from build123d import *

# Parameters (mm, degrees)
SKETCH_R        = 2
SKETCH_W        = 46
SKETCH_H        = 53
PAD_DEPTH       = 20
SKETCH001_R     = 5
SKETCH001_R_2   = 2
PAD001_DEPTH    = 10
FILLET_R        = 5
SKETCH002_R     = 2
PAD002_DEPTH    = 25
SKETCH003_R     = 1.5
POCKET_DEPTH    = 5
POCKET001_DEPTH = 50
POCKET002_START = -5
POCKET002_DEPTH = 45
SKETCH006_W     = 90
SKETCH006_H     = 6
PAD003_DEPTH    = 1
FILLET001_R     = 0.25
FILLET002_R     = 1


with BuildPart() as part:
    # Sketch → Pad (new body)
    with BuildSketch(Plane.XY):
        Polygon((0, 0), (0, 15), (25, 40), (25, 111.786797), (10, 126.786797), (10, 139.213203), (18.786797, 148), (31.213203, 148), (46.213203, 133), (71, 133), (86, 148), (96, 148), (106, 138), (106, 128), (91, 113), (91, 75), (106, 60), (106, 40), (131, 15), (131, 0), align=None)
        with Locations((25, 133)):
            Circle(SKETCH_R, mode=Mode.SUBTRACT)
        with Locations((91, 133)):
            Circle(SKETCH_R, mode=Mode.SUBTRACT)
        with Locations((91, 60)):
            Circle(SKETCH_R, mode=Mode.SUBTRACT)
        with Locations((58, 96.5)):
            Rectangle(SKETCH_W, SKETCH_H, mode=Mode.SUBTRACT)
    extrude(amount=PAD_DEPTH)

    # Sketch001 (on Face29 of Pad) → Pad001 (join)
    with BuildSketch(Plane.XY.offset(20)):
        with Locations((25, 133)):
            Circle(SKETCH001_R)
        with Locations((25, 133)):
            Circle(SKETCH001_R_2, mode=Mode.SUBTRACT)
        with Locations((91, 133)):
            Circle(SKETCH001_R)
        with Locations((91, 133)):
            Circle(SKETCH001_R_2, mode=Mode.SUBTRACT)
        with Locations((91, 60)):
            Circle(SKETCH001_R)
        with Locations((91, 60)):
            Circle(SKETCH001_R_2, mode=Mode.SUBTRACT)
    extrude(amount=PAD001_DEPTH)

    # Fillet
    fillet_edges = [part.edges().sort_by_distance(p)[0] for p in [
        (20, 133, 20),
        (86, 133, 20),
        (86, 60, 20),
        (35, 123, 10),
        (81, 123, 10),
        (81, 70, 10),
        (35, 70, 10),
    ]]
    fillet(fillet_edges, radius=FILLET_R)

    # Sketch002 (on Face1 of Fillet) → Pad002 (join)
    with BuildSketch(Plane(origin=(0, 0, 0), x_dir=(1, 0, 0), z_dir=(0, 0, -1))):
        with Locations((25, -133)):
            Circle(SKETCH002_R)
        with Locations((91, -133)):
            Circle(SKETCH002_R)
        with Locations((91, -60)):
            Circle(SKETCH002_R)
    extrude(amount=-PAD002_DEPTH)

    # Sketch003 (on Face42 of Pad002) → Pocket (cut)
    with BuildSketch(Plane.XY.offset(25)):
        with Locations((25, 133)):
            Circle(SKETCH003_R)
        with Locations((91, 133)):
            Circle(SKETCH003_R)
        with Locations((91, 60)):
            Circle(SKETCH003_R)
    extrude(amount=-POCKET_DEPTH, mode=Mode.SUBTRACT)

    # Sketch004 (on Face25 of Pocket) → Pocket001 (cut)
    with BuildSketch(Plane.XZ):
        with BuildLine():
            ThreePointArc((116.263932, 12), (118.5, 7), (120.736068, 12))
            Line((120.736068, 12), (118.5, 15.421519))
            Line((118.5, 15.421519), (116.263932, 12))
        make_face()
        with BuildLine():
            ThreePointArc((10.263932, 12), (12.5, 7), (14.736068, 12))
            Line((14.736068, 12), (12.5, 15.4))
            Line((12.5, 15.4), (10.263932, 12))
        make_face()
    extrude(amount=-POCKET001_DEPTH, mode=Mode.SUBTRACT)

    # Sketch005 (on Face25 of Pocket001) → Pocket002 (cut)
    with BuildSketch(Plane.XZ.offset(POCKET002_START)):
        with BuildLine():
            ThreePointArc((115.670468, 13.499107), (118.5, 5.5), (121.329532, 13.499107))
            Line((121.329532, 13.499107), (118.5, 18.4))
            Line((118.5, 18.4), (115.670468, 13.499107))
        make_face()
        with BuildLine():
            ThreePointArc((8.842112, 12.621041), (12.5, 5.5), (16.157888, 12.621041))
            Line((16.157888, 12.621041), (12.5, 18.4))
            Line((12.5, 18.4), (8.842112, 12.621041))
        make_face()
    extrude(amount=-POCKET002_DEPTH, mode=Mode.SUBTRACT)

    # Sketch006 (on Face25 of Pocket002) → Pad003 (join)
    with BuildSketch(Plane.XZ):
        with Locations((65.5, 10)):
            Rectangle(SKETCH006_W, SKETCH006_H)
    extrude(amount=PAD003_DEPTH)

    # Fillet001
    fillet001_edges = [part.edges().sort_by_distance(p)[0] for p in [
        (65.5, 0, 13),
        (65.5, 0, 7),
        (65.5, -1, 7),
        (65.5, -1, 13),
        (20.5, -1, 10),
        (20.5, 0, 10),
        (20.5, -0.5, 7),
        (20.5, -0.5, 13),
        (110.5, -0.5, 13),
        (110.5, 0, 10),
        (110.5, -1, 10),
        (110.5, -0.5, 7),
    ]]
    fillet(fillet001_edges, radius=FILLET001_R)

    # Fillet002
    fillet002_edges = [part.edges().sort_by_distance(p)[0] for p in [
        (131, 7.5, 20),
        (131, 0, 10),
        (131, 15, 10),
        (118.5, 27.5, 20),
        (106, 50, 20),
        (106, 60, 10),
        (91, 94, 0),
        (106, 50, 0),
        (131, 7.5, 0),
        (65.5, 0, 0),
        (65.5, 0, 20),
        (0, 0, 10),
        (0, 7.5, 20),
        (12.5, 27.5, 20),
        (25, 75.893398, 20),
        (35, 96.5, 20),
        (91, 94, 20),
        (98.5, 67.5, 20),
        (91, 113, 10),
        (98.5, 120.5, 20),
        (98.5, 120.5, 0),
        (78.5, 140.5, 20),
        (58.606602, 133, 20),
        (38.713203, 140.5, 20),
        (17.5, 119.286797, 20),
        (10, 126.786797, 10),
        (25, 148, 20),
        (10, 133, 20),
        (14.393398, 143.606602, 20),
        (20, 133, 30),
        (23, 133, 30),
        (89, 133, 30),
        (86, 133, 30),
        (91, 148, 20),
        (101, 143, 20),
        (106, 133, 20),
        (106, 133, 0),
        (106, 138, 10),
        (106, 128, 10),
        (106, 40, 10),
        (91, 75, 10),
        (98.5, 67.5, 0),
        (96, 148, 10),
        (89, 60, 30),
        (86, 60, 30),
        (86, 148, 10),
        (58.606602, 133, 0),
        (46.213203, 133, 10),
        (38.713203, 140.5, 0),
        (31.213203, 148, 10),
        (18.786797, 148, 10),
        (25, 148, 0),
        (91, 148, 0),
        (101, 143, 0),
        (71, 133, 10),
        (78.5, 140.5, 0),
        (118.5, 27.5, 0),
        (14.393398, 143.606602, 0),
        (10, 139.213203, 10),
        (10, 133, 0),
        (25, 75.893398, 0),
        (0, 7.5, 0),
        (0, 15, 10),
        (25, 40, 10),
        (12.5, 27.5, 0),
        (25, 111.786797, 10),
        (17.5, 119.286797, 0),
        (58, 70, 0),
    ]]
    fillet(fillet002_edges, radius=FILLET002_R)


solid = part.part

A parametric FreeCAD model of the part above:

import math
import FreeCAD as App
import Part
import Sketcher

V = App.Vector
Q = App.Units.Quantity


def edges_at(feature, points):
    """Names of the edges that pass closest to the given points."""
    edges = feature.Shape.Edges
    near = lambda p: min(range(len(edges)), key=lambda i: edges[i].distToShape(Part.Vertex(*p))[0])
    return sorted({f"Edge{near(p) + 1}" for p in points})


def add_polygon(sketch, points):
    """Adds a closed chain of lines whose ends are joined by coincident constraints."""
    first, n = sketch.GeometryCount, len(points)
    for a, b in zip(points, points[1:] + points[:1]):
        sketch.addGeometry(Part.LineSegment(App.Vector(*a, 0), App.Vector(*b, 0)), False)
    for i in range(n):
        sketch.addConstraint(Sketcher.Constraint("Coincident", first + i, 2, first + (i + 1) % n, 1))

doc = App.newDocument("Part")
body = doc.addObject("PartDesign::Body", "Body")

# Sketch on XY plane
sketch1 = body.newObject("Sketcher::SketchObject", "Sketch")
sketch1.AttachmentSupport = (doc.getObject("XY_Plane"), [""])
sketch1.MapMode = "FlatFace"
add_polygon(sketch1, [(0, 15), (0, 0), (131, 0), (131, 15), (106, 40), (106, 60), (91, 75), (91, 113), (106, 128), (106, 138), (96, 148), (86, 148), (71, 133), (46.213203, 133), (31.213203, 148), (18.786797, 148), (10, 139.213203), (10, 126.786797), (25, 111.786797), (25, 40)])  # lines 0-19
sketch1.addGeometry(Part.Circle(V(91, 60, 0), V(0, 0, 1), 2), False)  # 20
sketch1.addGeometry(Part.Circle(V(91, 133, 0), V(0, 0, 1), 2), False)  # 21
add_polygon(sketch1, [(35, 70), (35, 123), (81, 123), (81, 70)])  # lines 22-25
sketch1.addGeometry(Part.Circle(V(25, 133, 0), V(0, 0, 1), 2), False)  # 26
sketch1.addConstraint([
    Sketcher.Constraint("Vertical", 0),
    Sketcher.Constraint("Horizontal", 1),
    Sketcher.Constraint("Vertical", 2),
    Sketcher.Constraint("Vertical", 4),
    Sketcher.Constraint("Vertical", 6),
    Sketcher.Constraint("Vertical", 8),
    Sketcher.Constraint("Horizontal", 10),
    Sketcher.Constraint("Horizontal", 12),
    Sketcher.Constraint("Horizontal", 14),
    Sketcher.Constraint("Vertical", 16),
    Sketcher.Constraint("Vertical", 18),
    Sketcher.Constraint("Vertical", 22),
    Sketcher.Constraint("Horizontal", 23),
    Sketcher.Constraint("Vertical", 24),
    Sketcher.Constraint("Horizontal", 25),
    Sketcher.Constraint("Coincident", 0, 2, -1, 1),
    Sketcher.Constraint("Equal", 20, 21),
    Sketcher.Constraint("Equal", 21, 26),
    Sketcher.Constraint("Parallel", 3, 5),
    Sketcher.Constraint("Perpendicular", 5, 7),
    Sketcher.Constraint("Perpendicular", 7, 9),
    Sketcher.Constraint("Perpendicular", 9, 11),
    Sketcher.Constraint("Perpendicular", 11, 13),
    Sketcher.Constraint("Perpendicular", 13, 15),
    Sketcher.Constraint("Perpendicular", 15, 17),
    Sketcher.Constraint("Perpendicular", 17, 19),
    Sketcher.Constraint("Horizontal", 21, 3, 26, 3),
    Sketcher.Constraint("Horizontal", 20, 3, 4, 2),
    Sketcher.Constraint("Horizontal", 26, 3, 11, 2),
    Sketcher.Constraint("Horizontal", 10, 2, 13, 2),
    Sketcher.Constraint("Horizontal", 3, 2, 18, 2),
    Sketcher.Constraint("Horizontal", 2, 2, 19, 2),
    Sketcher.Constraint("Vertical", 20, 3, 21, 3),
    Sketcher.Constraint("Vertical", 21, 3, 5, 2),
    Sketcher.Constraint("Vertical", 4, 2, 7, 2),
    Sketcher.Constraint("Vertical", 26, 3, 17, 2),
    Sketcher.Constraint("Equal", 10, 8),
    Sketcher.Constraint("Equal", 14, 16),
    Sketcher.Constraint("Equal", 5, 7),
    Sketcher.Constraint("Equal", 7, 11),
    Sketcher.Constraint("Equal", 13, 17),
    Sketcher.Constraint("Diameter", 20, 4.0),
    Sketcher.Constraint("DistanceX", 1, 1, 1, 2, 131.0),
    Sketcher.Constraint("DistanceX", 10, 2, 10, 1, 10.0),
    Sketcher.Constraint("DistanceX", 23, 1, 23, 2, 46.0),
    Sketcher.Constraint("DistanceY", 0, 2, 0, 1, 15.0),
    Sketcher.Constraint("DistanceY", 4, 1, 4, 2, 20.0),
    Sketcher.Constraint("DistanceY", 6, 1, 6, 2, 38.0),
    Sketcher.Constraint("DistanceY", 22, 1, 22, 2, 53.0),
    Sketcher.Constraint("DistanceX", -1, 1, 20, 3, 91.0),
    Sketcher.Constraint("DistanceY", -1, 1, 20, 3, 60.0),
    Sketcher.Constraint("DistanceY", -1, 1, 21, 3, 133.0),
    Sketcher.Constraint("DistanceX", -1, 1, 22, 2, 35.0),
    Sketcher.Constraint("DistanceY", -1, 1, 22, 2, 123.0),
    Sketcher.Constraint("DistanceX", 12, 2, 12, 1, 24.786797),
    Sketcher.Constraint("DistanceX", 14, 2, 14, 1, 12.426406),
])
pad1 = body.newObject("PartDesign::Pad", "Pad")
pad1.Profile = sketch1
pad1.Length = 20

# Sketch on XY plane
sketch2 = body.newObject("Sketcher::SketchObject", "Sketch001")
sketch2.AttachmentSupport = (doc.getObject("XY_Plane"), [""])
sketch2.MapMode = "FlatFace"
sketch2.AttachmentOffset = App.Placement(V(0, 0, 20), App.Rotation())
sketch2.addGeometry([
    Part.Circle(V(25, 133, 0), V(0, 0, 1), 5),  # 0
    Part.Circle(V(25, 133, 0), V(0, 0, 1), 2),  # 1
    Part.Circle(V(91, 133, 0), V(0, 0, 1), 5),  # 2
    Part.Circle(V(91, 133, 0), V(0, 0, 1), 2),  # 3
    Part.Circle(V(91, 60, 0), V(0, 0, 1), 5),  # 4
    Part.Circle(V(91, 60, 0), V(0, 0, 1), 2),  # 5
], False)
sketch2.addConstraint([
    Sketcher.Constraint("Coincident", 1, 3, 0, 3),
    Sketcher.Constraint("Coincident", 3, 3, 2, 3),
    Sketcher.Constraint("Coincident", 5, 3, 4, 3),
    Sketcher.Constraint("Equal", 0, 2),
    Sketcher.Constraint("Equal", 1, 3),
    Sketcher.Constraint("Equal", 2, 4),
    Sketcher.Constraint("Equal", 3, 5),
    Sketcher.Constraint("Horizontal", 1, 3, 2, 3),
    Sketcher.Constraint("Vertical", 3, 3, 4, 3),
    Sketcher.Constraint("Diameter", 0, 10.0),
    Sketcher.Constraint("Diameter", 1, 4.0),
    Sketcher.Constraint("DistanceX", -1, 1, 0, 3, 25.0),
    Sketcher.Constraint("DistanceY", -1, 1, 0, 3, 133.0),
    Sketcher.Constraint("DistanceX", -1, 1, 2, 3, 91.0),
    Sketcher.Constraint("DistanceY", -1, 1, 4, 3, 60.0),
])
pad2 = body.newObject("PartDesign::Pad", "Pad001")
pad2.Profile = sketch2
pad2.Length = 10
doc.recompute()

fillet = body.newObject("PartDesign::Fillet", "Fillet")
fillet.Base = (pad2, edges_at(pad2, [
    (20, 133, 20),
    (86, 133, 20),
    (86, 60, 20),
    (35, 123, 10),
    (81, 123, 10),
    (81, 70, 10),
    (35, 70, 10),
]))
fillet.Radius = 5

# Sketch on XY plane
sketch3 = body.newObject("Sketcher::SketchObject", "Sketch002")
sketch3.AttachmentSupport = (doc.getObject("XY_Plane"), [""])
sketch3.MapMode = "FlatFace"
sketch3.addGeometry([
    Part.Circle(V(25, 133, 0), V(0, 0, 1), 2),
    Part.Circle(V(91, 133, 0), V(0, 0, 1), 2),
    Part.Circle(V(91, 60, 0), V(0, 0, 1), 2),
], False)
sketch3.addConstraint([
    Sketcher.Constraint("Equal", 0, 1),
    Sketcher.Constraint("Equal", 1, 2),
    Sketcher.Constraint("Horizontal", 0, 3, 1, 3),
    Sketcher.Constraint("Vertical", 1, 3, 2, 3),
    Sketcher.Constraint("Diameter", 0, 4.0),
    Sketcher.Constraint("DistanceX", -1, 1, 0, 3, 25.0),
    Sketcher.Constraint("DistanceY", -1, 1, 0, 3, 133.0),
    Sketcher.Constraint("DistanceX", -1, 1, 1, 3, 91.0),
    Sketcher.Constraint("DistanceY", -1, 1, 2, 3, 60.0),
])
pad3 = body.newObject("PartDesign::Pad", "Pad002")
pad3.Profile = sketch3
pad3.Length = 25

# Sketch on XY plane
sketch4 = body.newObject("Sketcher::SketchObject", "Sketch003")
sketch4.AttachmentSupport = (doc.getObject("XY_Plane"), [""])
sketch4.MapMode = "FlatFace"
sketch4.AttachmentOffset = App.Placement(V(0, 0, 25), App.Rotation())
sketch4.addGeometry([
    Part.Circle(V(25, 133, 0), V(0, 0, 1), 1.5),
    Part.Circle(V(91, 133, 0), V(0, 0, 1), 1.5),
    Part.Circle(V(91, 60, 0), V(0, 0, 1), 1.5),
], False)
sketch4.addConstraint([
    Sketcher.Constraint("Equal", 0, 1),
    Sketcher.Constraint("Equal", 1, 2),
    Sketcher.Constraint("Horizontal", 0, 3, 1, 3),
    Sketcher.Constraint("Vertical", 1, 3, 2, 3),
    Sketcher.Constraint("Diameter", 0, 3.0),
    Sketcher.Constraint("DistanceX", -1, 1, 0, 3, 25.0),
    Sketcher.Constraint("DistanceY", -1, 1, 0, 3, 133.0),
    Sketcher.Constraint("DistanceX", -1, 1, 1, 3, 91.0),
    Sketcher.Constraint("DistanceY", -1, 1, 2, 3, 60.0),
])
pocket1 = body.newObject("PartDesign::Pocket", "Pocket")
pocket1.Profile = sketch4
pocket1.Length = 5

# Sketch on XZ plane
sketch5 = body.newObject("Sketcher::SketchObject", "Sketch004")
sketch5.AttachmentSupport = (doc.getObject("XZ_Plane"), [""])
sketch5.MapMode = "FlatFace"
sketch5.addGeometry([
    Part.ArcOfCircle(Part.Circle(V(118.5, 10, 0), V(0, 0, 1), 3), math.radians(138.189686), math.radians(401.810314)),  # 0
    Part.LineSegment(V(120.736068, 12, 0), V(118.5, 15.421519, 0)),  # 1
    Part.LineSegment(V(118.5, 15.421519, 0), V(116.263932, 12, 0)),  # 2
    Part.ArcOfCircle(Part.Circle(V(12.5, 10, 0), V(0, 0, 1), 3), math.radians(138.189686), math.radians(401.810314)),  # 3
    Part.LineSegment(V(14.736068, 12, 0), V(12.5, 15.4, 0)),  # 4
    Part.LineSegment(V(12.5, 15.4, 0), V(10.263932, 12, 0)),  # 5
], False)
sketch5.addConstraint([
    Sketcher.Constraint("Coincident", 0, 2, 1, 1),
    Sketcher.Constraint("Coincident", 1, 2, 2, 1),
    Sketcher.Constraint("Coincident", 2, 2, 0, 1),
    Sketcher.Constraint("Coincident", 3, 2, 4, 1),
    Sketcher.Constraint("Coincident", 4, 2, 5, 1),
    Sketcher.Constraint("Coincident", 5, 2, 3, 1),
    Sketcher.Constraint("Equal", 0, 3),
    Sketcher.Constraint("Horizontal", 0, 3, 3, 3),
    Sketcher.Constraint("Horizontal", 0, 2, 2, 2),
    Sketcher.Constraint("Horizontal", 2, 2, 3, 2),
    Sketcher.Constraint("Horizontal", 3, 2, 5, 2),
    Sketcher.Constraint("Vertical", 0, 3, 1, 2),
    Sketcher.Constraint("Vertical", 3, 3, 4, 2),
    Sketcher.Constraint("Radius", 0, 3.0),
    Sketcher.Constraint("DistanceY", -1, 1, 0, 3, 10.0),
    Sketcher.Constraint("DistanceY", -1, 1, 0, 2, 12.0),
    Sketcher.Constraint("DistanceX", 3, 3, 0, 3, 106.0),
    Sketcher.Constraint("DistanceX", -1, 1, 0, 3, 118.5),
    Sketcher.Constraint("DistanceY", -1, 1, 4, 2, 15.4),
    Sketcher.Constraint("DistanceY", -1, 1, 1, 2, 15.421519),
])
pocket2 = body.newObject("PartDesign::Pocket", "Pocket001")
pocket2.Profile = sketch5
pocket2.Length = 50

# Sketch on XZ plane
sketch6 = body.newObject("Sketcher::SketchObject", "Sketch005")
sketch6.AttachmentSupport = (doc.getObject("XZ_Plane"), [""])
sketch6.MapMode = "FlatFace"
sketch6.AttachmentOffset = App.Placement(V(0, 0, -5), App.Rotation())
sketch6.addGeometry([
    Part.ArcOfCircle(Part.Circle(V(118.5, 10, 0), V(0, 0, 1), 4.5), math.radians(128.96053), math.radians(411.03947)),  # 0
    Part.LineSegment(V(121.329532, 13.499107, 0), V(118.5, 18.4, 0)),  # 1
    Part.LineSegment(V(118.5, 18.4, 0), V(115.670468, 13.499107, 0)),  # 2
    Part.ArcOfCircle(Part.Circle(V(12.5, 10, 0), V(0, 0, 1), 4.5), math.radians(144.376703), math.radians(395.623297)),  # 3
    Part.LineSegment(V(16.157888, 12.621041, 0), V(12.5, 18.4, 0)),  # 4
    Part.LineSegment(V(12.5, 18.4, 0), V(8.842112, 12.621041, 0)),  # 5
], False)
sketch6.addConstraint([
    Sketcher.Constraint("Coincident", 0, 2, 1, 1),
    Sketcher.Constraint("Coincident", 1, 2, 2, 1),
    Sketcher.Constraint("Coincident", 2, 2, 0, 1),
    Sketcher.Constraint("Coincident", 3, 2, 4, 1),
    Sketcher.Constraint("Coincident", 4, 2, 5, 1),
    Sketcher.Constraint("Coincident", 5, 2, 3, 1),
    Sketcher.Constraint("Equal", 0, 3),
    Sketcher.Constraint("Horizontal", 0, 3, 3, 3),
    Sketcher.Constraint("Horizontal", 0, 2, 2, 2),
    Sketcher.Constraint("Horizontal", 1, 2, 4, 2),
    Sketcher.Constraint("Horizontal", 3, 2, 5, 2),
    Sketcher.Constraint("Vertical", 0, 3, 1, 2),
    Sketcher.Constraint("Vertical", 3, 3, 4, 2),
    Sketcher.Constraint("Radius", 0, 4.5),
    Sketcher.Constraint("Angle", 1, Q("120.000001 deg")),
    Sketcher.Constraint("DistanceY", -1, 1, 0, 3, 10.0),
    Sketcher.Constraint("DistanceX", 3, 3, 0, 3, 106.0),
    Sketcher.Constraint("DistanceX", -1, 1, 0, 3, 118.5),
    Sketcher.Constraint("DistanceY", -1, 1, 1, 2, 18.4),
    Sketcher.Constraint("DistanceY", -1, 1, 3, 2, 12.621041),
])
pocket3 = body.newObject("PartDesign::Pocket", "Pocket002")
pocket3.Profile = sketch6
pocket3.Length = 45

# Sketch on XZ plane
sketch7 = body.newObject("Sketcher::SketchObject", "Sketch006")
sketch7.AttachmentSupport = (doc.getObject("XZ_Plane"), [""])
sketch7.MapMode = "FlatFace"
add_polygon(sketch7, [(20.5, 13), (20.5, 7), (110.5, 7), (110.5, 13)])  # lines 0-3
sketch7.addConstraint([
    Sketcher.Constraint("Vertical", 0),
    Sketcher.Constraint("Horizontal", 1),
    Sketcher.Constraint("Vertical", 2),
    Sketcher.Constraint("Horizontal", 3),
    Sketcher.Constraint("DistanceX", 1, 1, 1, 2, 90.0),
    Sketcher.Constraint("DistanceY", 0, 2, 0, 1, 6.0),
    Sketcher.Constraint("DistanceY", -1, 1, 0, 2, 7.0),
    Sketcher.Constraint("DistanceX", -1, 1, 0, 2, 20.5),
])
pad4 = body.newObject("PartDesign::Pad", "Pad003")
pad4.Profile = sketch7
pad4.Length = 1
doc.recompute()

fillet2 = body.newObject("PartDesign::Fillet", "Fillet001")
fillet2.Base = (pad4, edges_at(pad4, [
    (65.5, 0, 13),
    (65.5, 0, 7),
    (65.5, -1, 7),
    (65.5, -1, 13),
    (20.5, -1, 10),
    (20.5, 0, 10),
    (20.5, -0.5, 7),
    (20.5, -0.5, 13),
    (110.5, -0.5, 13),
    (110.5, 0, 10),
    (110.5, -1, 10),
    (110.5, -0.5, 7),
]))
fillet2.Radius = 0.25
doc.recompute()

fillet3 = body.newObject("PartDesign::Fillet", "Fillet002")
fillet3.Base = (fillet2, edges_at(fillet2, [
    (131, 7.5, 20),
    (131, 0, 10),
    (131, 15, 10),
    (118.5, 27.5, 20),
    (106, 50, 20),
    (106, 60, 10),
    (91, 94, 0),
    (106, 50, 0),
    (131, 7.5, 0),
    (65.5, 0, 0),
    (65.5, 0, 20),
    (0, 0, 10),
    (0, 7.5, 20),
    (12.5, 27.5, 20),
    (25, 75.893, 20),
    (35, 96.5, 20),
    (91, 94, 20),
    (98.5, 67.5, 20),
    (91, 113, 10),
    (98.5, 120.5, 20),
    (98.5, 120.5, 0),
    (78.5, 140.5, 20),
    (58.607, 133, 20),
    (38.713, 140.5, 20),
    (17.5, 119.287, 20),
    (10, 126.787, 10),
    (25, 148, 20),
    (10, 133, 20),
    (14.393, 143.607, 20),
    (20, 133, 30),
    (23, 133, 30),
    (89, 133, 30),
    (86, 133, 30),
    (91, 148, 20),
    (101, 143, 20),
    (106, 133, 20),
    (106, 133, 0),
    (106, 138, 10),
    (106, 128, 10),
    (106, 40, 10),
    (91, 75, 10),
    (98.5, 67.5, 0),
    (96, 148, 10),
    (89, 60, 30),
    (86, 60, 30),
    (86, 148, 10),
    (58.607, 133, 0),
    (46.213, 133, 10),
    (38.713, 140.5, 0),
    (31.213, 148, 10),
    (18.787, 148, 10),
    (25, 148, 0),
    (91, 148, 0),
    (101, 143, 0),
    (71, 133, 10),
    (78.5, 140.5, 0),
    (118.5, 27.5, 0),
    (14.393, 143.607, 0),
    (10, 139.213, 10),
    (10, 133, 0),
    (25, 75.893, 0),
    (0, 7.5, 0),
    (0, 15, 10),
    (25, 40, 10),
    (12.5, 27.5, 0),
    (25, 111.787, 10),
    (17.5, 119.287, 0),
    (58, 70, 0),
]))
fillet3.Radius = 1

doc.recompute()
